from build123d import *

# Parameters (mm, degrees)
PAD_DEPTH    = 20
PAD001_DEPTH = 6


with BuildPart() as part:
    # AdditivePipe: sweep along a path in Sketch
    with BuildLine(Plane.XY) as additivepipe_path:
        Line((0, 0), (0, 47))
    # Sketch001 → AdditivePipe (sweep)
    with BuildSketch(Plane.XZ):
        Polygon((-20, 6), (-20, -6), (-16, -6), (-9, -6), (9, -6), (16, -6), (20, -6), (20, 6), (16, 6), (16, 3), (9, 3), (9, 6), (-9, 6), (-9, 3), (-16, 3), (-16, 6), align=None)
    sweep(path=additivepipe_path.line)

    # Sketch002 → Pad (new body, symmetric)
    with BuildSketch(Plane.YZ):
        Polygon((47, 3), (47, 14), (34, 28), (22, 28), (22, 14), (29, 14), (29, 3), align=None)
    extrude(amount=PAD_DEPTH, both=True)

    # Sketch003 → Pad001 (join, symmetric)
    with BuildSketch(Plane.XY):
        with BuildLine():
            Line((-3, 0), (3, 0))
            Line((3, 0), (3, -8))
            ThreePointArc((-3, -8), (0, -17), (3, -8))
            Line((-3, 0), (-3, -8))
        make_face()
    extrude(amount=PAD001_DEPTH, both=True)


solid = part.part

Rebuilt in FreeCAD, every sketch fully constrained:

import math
import FreeCAD as App
import Part
import Sketcher
from FreeCAD import Vector


def add_polygon(sketch, points):
    """Adds a closed chain of lines whose ends are joined by coincident constraints."""
    first, n = sketch.GeometryCount, len(points)
    for a, b in zip(points, points[1:] + points[:1]):
        sketch.addGeometry(Part.LineSegment(App.Vector(*a, 0), App.Vector(*b, 0)), False)
    for i in range(n):
        sketch.addConstraint(Sketcher.Constraint("Coincident", first + i, 2, first + (i + 1) % n, 1))

doc = App.newDocument("Part")
body = doc.addObject("PartDesign::Body", "Body")

sketch1 = body.newObject("Sketcher::SketchObject", "Sketch")
sketch1.AttachmentSupport = (doc.getObject("XZ_Plane"), [""])
sketch1.MapMode = "FlatFace"
add_polygon(sketch1, [(-20, 6), (-20, -6), (20, -6), (20, 6), (16, 6), (16, 3), (9, 3), (9, 6), (-9, 6), (-9, 3), (-16, 3), (-16, 6)])
sketch1.addConstraint(Sketcher.Constraint("Vertical", 0))
sketch1.addConstraint(Sketcher.Constraint("Horizontal", 1))
sketch1.addConstraint(Sketcher.Constraint("Vertical", 2))
sketch1.addConstraint(Sketcher.Constraint("Horizontal", 3))
sketch1.addConstraint(Sketcher.Constraint("Vertical", 4))
sketch1.addConstraint(Sketcher.Constraint("Horizontal", 5))
sketch1.addConstraint(Sketcher.Constraint("Vertical", 6))
sketch1.addConstraint(Sketcher.Constraint("Horizontal", 7))
sketch1.addConstraint(Sketcher.Constraint("Vertical", 8))
sketch1.addConstraint(Sketcher.Constraint("Horizontal", 9))
sketch1.addConstraint(Sketcher.Constraint("Vertical", 10))
sketch1.addConstraint(Sketcher.Constraint("Horizontal", 11))
sketch1.addConstraint(Sketcher.Constraint("Symmetric", 0, 2, 2, 2, -1, 1))
sketch1.addConstraint(Sketcher.Constraint("Symmetric", 5, 2, 8, 2, -2))
sketch1.addConstraint(Sketcher.Constraint("Symmetric", 3, 2, 10, 2, -2))
sketch1.addConstraint(Sketcher.Constraint("Horizontal", 3, 2, 6, 2))
sketch1.addConstraint(Sketcher.Constraint("DistanceX", 1, 1, 1, 2, 40.0))
sketch1.addConstraint(Sketcher.Constraint("DistanceX", 3, 2, 3, 1, 4.0))
sketch1.addConstraint(Sketcher.Constraint("DistanceX", 5, 2, 5, 1, 7.0))
sketch1.addConstraint(Sketcher.Constraint("DistanceY", 0, 2, 0, 1, 12.0))
sketch1.addConstraint(Sketcher.Constraint("DistanceY", 4, 2, 4, 1, 3.0))

sketch2 = body.newObject("Sketcher::SketchObject", "Sketch001")
sketch2.AttachmentSupport = (doc.getObject("XY_Plane"), [""])
sketch2.MapMode = "FlatFace"
sketch2.addGeometry(Part.LineSegment(Vector(0, 0, 0), Vector(0, 47, 0)), False)
sketch2.addConstraint(Sketcher.Constraint("Vertical", 0))
sketch2.addConstraint(Sketcher.Constraint("Coincident", 0, 1, -1, 1))
sketch2.addConstraint(Sketcher.Constraint("DistanceY", 0, 1, 0, 2, 47.0))
doc.recompute()

additivepipe = body.newObject("PartDesign::AdditivePipe", "AdditivePipe")
additivepipe.Profile = sketch1
additivepipe.Spine = (sketch2, ["Edge1"])

sketch3 = body.newObject("Sketcher::SketchObject", "Sketch002")
sketch3.AttachmentSupport = (doc.getObject("YZ_Plane"), [""])
sketch3.MapMode = "FlatFace"
add_polygon(sketch3, [(47, 3), (47, 14), (34, 28), (22, 28), (22, 14), (29, 14), (29, 3)])
sketch3.addConstraint(Sketcher.Constraint("Vertical", 0))
sketch3.addConstraint(Sketcher.Constraint("Horizontal", 2))
sketch3.addConstraint(Sketcher.Constraint("Vertical", 3))
sketch3.addConstraint(Sketcher.Constraint("Horizontal", 4))
sketch3.addConstraint(Sketcher.Constraint("Vertical", 5))
sketch3.addConstraint(Sketcher.Constraint("Horizontal", 6))
sketch3.addConstraint(Sketcher.Constraint("Horizontal", 0, 2, 3, 2))
sketch3.addConstraint(Sketcher.Constraint("DistanceX", 2, 2, 2, 1, 12.0))
sketch3.addConstraint(Sketcher.Constraint("DistanceX", 4, 1, 4, 2, 7.0))
sketch3.addConstraint(Sketcher.Constraint("DistanceX", 6, 1, 6, 2, 18.0))
sketch3.addConstraint(Sketcher.Constraint("DistanceY", 0, 1, 0, 2, 11.0))
sketch3.addConstraint(Sketcher.Constraint("DistanceY", 3, 2, 3, 1, 14.0))
sketch3.addConstraint(Sketcher.Constraint("DistanceX", -1, 1, 0, 2, 47.0))
sketch3.addConstraint(Sketcher.Constraint("DistanceY", -1, 1, 0, 2, 14.0))
pad1 = body.newObject("PartDesign::Pad", "Pad")
pad1.Profile = sketch3
pad1.Length = 40
pad1.Midplane = True

sketch4 = body.newObject("Sketcher::SketchObject", "Sketch003")
sketch4.AttachmentSupport = (doc.getObject("XY_Plane"), [""])
sketch4.MapMode = "FlatFace"
sketch4.addGeometry(Part.LineSegment(Vector(3, 0, 0), Vector(-3, 0, 0)), False)
sketch4.addGeometry(Part.LineSegment(Vector(-3, 0, 0), Vector(-3, -8, 0)), False)
sketch4.addGeometry(Part.ArcOfCircle(Part.Circle(Vector(0, -12, 0), Vector(0, 0, 1), 5), math.radians(126.869898), math.radians(413.130102)), False)
sketch4.addGeometry(Part.LineSegment(Vector(3, -8, 0), Vector(3, 0, 0)), False)
sketch4.addConstraint(Sketcher.Constraint("Coincident", 0, 2, 1, 1))
sketch4.addConstraint(Sketcher.Constraint("Coincident", 1, 2, 2, 1))
sketch4.addConstraint(Sketcher.Constraint("Coincident", 2, 2, 3, 1))
sketch4.addConstraint(Sketcher.Constraint("Coincident", 3, 2, 0, 1))
sketch4.addConstraint(Sketcher.Constraint("Horizontal", 0))
sketch4.addConstraint(Sketcher.Constraint("Vertical", 1))
sketch4.addConstraint(Sketcher.Constraint("Vertical", 3))
sketch4.addConstraint(Sketcher.Constraint("Symmetric", 0, 2, 3, 2, -1, 1))
sketch4.addConstraint(Sketcher.Constraint("PointOnObject", 2, 3, -2))
sketch4.addConstraint(Sketcher.Constraint("Radius", 2, 5.0))
sketch4.addConstraint(Sketcher.Constraint("DistanceX", 0, 2, 0, 1, 6.0))
sketch4.addConstraint(Sketcher.Constraint("DistanceY", 1, 2, 1, 1, 8.0))
pad2 = body.newObject("PartDesign::Pad", "Pad001")
pad2.Profile = sketch4
pad2.Length = 12
pad2.Midplane = True

doc.recompute()
